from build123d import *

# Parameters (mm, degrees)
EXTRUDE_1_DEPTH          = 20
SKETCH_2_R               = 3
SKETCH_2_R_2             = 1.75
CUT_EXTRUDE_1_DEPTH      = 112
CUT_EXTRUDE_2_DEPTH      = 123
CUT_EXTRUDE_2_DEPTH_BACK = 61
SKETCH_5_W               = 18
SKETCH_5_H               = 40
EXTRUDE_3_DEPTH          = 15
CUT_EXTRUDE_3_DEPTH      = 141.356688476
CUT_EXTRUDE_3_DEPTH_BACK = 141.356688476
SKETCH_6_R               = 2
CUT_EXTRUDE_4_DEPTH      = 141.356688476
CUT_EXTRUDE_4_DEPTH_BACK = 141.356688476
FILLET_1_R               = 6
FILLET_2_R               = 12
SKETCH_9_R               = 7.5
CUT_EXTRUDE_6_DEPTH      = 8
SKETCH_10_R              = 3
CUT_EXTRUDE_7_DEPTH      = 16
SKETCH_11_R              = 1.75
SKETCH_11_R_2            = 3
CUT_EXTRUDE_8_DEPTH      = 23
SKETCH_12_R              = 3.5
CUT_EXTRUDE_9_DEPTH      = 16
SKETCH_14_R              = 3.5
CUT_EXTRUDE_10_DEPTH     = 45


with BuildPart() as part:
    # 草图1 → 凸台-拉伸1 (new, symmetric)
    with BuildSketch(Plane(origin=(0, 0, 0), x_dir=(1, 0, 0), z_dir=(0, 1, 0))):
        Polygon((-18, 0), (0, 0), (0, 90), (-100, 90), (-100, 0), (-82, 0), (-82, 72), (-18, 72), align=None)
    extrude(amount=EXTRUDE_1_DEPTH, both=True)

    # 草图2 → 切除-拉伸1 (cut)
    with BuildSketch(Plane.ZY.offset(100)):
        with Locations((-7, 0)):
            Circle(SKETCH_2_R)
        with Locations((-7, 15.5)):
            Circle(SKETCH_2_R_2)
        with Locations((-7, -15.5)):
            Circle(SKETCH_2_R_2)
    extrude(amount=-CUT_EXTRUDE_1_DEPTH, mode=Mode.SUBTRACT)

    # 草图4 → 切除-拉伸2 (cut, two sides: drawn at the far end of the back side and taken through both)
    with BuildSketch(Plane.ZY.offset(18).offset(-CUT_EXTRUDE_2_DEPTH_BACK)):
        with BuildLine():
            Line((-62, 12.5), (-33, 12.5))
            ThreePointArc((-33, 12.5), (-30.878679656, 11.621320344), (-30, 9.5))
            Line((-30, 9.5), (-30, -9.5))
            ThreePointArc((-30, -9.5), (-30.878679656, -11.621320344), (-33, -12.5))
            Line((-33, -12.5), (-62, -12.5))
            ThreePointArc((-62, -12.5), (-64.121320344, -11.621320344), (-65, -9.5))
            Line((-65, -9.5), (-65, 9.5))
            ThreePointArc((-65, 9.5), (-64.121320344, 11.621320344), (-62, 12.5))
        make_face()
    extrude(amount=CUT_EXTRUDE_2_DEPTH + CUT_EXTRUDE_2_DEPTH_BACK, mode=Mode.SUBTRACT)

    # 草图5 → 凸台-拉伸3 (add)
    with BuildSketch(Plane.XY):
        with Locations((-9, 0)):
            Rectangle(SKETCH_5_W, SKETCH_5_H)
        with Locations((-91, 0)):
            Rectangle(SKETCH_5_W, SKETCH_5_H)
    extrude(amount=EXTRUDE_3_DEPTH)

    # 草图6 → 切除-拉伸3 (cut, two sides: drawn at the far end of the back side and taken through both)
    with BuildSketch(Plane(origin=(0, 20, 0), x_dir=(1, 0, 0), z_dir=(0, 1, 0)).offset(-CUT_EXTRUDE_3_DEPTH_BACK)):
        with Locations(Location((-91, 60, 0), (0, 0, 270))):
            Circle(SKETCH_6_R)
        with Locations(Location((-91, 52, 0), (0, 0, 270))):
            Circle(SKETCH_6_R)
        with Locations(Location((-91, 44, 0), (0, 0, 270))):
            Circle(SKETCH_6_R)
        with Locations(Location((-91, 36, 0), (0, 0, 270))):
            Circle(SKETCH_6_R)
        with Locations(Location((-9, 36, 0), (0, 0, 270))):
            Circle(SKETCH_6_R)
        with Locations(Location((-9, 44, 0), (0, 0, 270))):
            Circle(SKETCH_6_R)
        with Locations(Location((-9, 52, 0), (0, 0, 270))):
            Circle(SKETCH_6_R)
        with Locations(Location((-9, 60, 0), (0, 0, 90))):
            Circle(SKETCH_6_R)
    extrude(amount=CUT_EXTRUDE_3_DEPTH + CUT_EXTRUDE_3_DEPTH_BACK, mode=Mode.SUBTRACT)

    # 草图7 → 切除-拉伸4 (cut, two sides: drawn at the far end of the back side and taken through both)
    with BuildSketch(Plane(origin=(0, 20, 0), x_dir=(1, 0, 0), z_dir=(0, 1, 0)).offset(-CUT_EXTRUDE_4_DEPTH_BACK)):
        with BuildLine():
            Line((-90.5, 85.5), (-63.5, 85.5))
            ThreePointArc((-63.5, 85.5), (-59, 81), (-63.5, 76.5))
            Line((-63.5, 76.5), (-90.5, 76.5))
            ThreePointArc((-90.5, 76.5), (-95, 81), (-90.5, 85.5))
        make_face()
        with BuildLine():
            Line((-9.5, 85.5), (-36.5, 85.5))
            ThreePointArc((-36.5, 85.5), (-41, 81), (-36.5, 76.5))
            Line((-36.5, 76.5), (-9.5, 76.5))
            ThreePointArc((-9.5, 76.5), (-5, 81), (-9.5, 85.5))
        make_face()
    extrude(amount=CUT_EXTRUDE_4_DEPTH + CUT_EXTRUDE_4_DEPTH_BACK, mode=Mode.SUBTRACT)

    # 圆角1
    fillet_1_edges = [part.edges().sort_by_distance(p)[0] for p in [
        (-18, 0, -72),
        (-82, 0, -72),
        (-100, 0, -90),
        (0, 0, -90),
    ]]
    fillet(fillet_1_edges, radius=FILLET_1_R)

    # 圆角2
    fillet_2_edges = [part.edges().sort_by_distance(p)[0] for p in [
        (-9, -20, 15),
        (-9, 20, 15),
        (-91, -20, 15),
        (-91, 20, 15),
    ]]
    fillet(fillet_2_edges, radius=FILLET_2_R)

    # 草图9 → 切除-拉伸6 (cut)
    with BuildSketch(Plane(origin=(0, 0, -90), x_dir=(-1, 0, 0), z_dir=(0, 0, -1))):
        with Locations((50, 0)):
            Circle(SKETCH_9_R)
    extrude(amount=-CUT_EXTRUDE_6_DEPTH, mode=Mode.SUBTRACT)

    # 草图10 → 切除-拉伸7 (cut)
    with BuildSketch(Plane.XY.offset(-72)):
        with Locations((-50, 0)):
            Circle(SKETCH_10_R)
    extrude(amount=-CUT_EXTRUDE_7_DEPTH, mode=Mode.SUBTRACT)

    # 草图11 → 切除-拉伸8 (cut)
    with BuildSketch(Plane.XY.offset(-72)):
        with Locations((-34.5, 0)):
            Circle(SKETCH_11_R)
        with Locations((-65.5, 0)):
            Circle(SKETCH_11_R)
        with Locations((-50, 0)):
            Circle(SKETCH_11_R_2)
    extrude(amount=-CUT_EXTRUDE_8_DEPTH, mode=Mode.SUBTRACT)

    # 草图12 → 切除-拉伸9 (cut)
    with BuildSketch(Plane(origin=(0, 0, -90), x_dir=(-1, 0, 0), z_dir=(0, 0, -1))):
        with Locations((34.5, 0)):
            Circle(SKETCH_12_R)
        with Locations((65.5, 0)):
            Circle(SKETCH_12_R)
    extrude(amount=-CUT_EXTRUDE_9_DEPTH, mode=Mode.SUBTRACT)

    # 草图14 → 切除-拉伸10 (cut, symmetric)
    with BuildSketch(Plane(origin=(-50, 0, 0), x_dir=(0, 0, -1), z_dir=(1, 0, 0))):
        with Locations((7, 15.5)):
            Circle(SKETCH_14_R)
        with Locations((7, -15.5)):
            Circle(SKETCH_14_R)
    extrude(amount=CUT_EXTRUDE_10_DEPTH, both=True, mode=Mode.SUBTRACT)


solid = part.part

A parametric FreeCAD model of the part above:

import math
import FreeCAD as App
import Part
import Sketcher

V = App.Vector


def edges_at(feature, points):
    """Names of the edges that pass closest to the given points."""
    edges = feature.Shape.Edges
    near = lambda p: min(range(len(edges)), key=lambda i: edges[i].distToShape(Part.Vertex(*p))[0])
    return sorted({f"Edge{near(p) + 1}" for p in points})


def add_polygon(sketch, points):
    """Adds a closed chain of lines whose ends are joined by coincident constraints."""
    first, n = sketch.GeometryCount, len(points)
    for a, b in zip(points, points[1:] + points[:1]):
        sketch.addGeometry(Part.LineSegment(App.Vector(*a, 0), App.Vector(*b, 0)), False)
    for i in range(n):
        sketch.addConstraint(Sketcher.Constraint("Coincident", first + i, 2, first + (i + 1) % n, 1))

doc = App.newDocument("Part")
body = doc.addObject("PartDesign::Body", "Body")

sketch1 = body.newObject("Sketcher::SketchObject", "Sketch")
sketch1.AttachmentSupport = (doc.getObject("XZ_Plane"), [""])
sketch1.MapMode = "FlatFace"
add_polygon(sketch1, [(-18, 0), (0, 0), (0, -90), (-100, -90), (-100, 0), (-82, 0), (-82, -72), (-18, -72)])
sketch1.addConstraint(Sketcher.Constraint("Horizontal", 0))
sketch1.addConstraint(Sketcher.Constraint("Vertical", 1))
sketch1.addConstraint(Sketcher.Constraint("Horizontal", 2))
sketch1.addConstraint(Sketcher.Constraint("Vertical", 3))
sketch1.addConstraint(Sketcher.Constraint("Horizontal", 4))
sketch1.addConstraint(Sketcher.Constraint("Vertical", 5))
sketch1.addConstraint(Sketcher.Constraint("Horizontal", 6))
sketch1.addConstraint(Sketcher.Constraint("Vertical", 7))
sketch1.addConstraint(Sketcher.Constraint("Coincident", 0, 2, -1, 1))
sketch1.addConstraint(Sketcher.Constraint("PointOnObject", 3, 2, -1))
sketch1.addConstraint(Sketcher.Constraint("Equal", 0, 4))
sketch1.addConstraint(Sketcher.Constraint("DistanceX", 0, 1, 0, 2, 18.0))
sketch1.addConstraint(Sketcher.Constraint("DistanceX", 2, 2, 2, 1, 100.0))
sketch1.addConstraint(Sketcher.Constraint("DistanceY", 1, 2, 1, 1, 90.0))
sketch1.addConstraint(Sketcher.Constraint("DistanceY", 5, 2, 5, 1, 72.0))
pad1 = body.newObject("PartDesign::Pad", "Pad")
pad1.Profile = sketch1
pad1.Length = 40
pad1.Midplane = True

sketch2 = body.newObject("Sketcher::SketchObject", "Sketch001")
sketch2.AttachmentSupport = (doc.getObject("YZ_Plane"), [""])
sketch2.MapMode = "FlatFace"
sketch2.AttachmentOffset = App.Placement(V(0, 0, -100), App.Rotation())
sketch2.addGeometry(Part.Circle(V(0, -7, 0), V(0, 0, 1), 3), False)
sketch2.addGeometry(Part.Circle(V(15.5, -7, 0), V(0, 0, 1), 1.8), False)
sketch2.addGeometry(Part.Circle(V(-15.5, -7, 0), V(0, 0, 1), 1.8), False)
sketch2.addConstraint(Sketcher.Constraint("Equal", 1, 2))
sketch2.addConstraint(Sketcher.Constraint("Symmetric", 1, 3, 2, 3, -2))
sketch2.addConstraint(Sketcher.Constraint("PointOnObject", 0, 3, -2))
sketch2.addConstraint(Sketcher.Constraint("Horizontal", 0, 3, 1, 3))
sketch2.addConstraint(Sketcher.Constraint("Diameter", 0, 6.0))
sketch2.addConstraint(Sketcher.Constraint("Diameter", 1, 3.5))
sketch2.addConstraint(Sketcher.Constraint("DistanceY", 0, 3, -1, 1, 7.0))
sketch2.addConstraint(Sketcher.Constraint("DistanceX", 2, 3, 1, 3, 31.0))
pocket1 = body.newObject("PartDesign::Pocket", "Pocket")
pocket1.Profile = sketch2
pocket1.Length = 112
pocket1.Reversed = True

sketch3 = body.newObject("Sketcher::SketchObject", "Sketch002")
sketch3.AttachmentSupport = (doc.getObject("YZ_Plane"), [""])
sketch3.MapMode = "FlatFace"
sketch3.AttachmentOffset = App.Placement(V(0, 0, -18), App.Rotation())
sketch3.addGeometry(Part.LineSegment(V(12.5, -33, 0), V(12.5, -62, 0)), False)
sketch3.addGeometry(Part.ArcOfCircle(Part.Circle(V(9.5, -62, 0), V(0, 0, 1), 3), math.radians(-90), math.radians(0)), False)
sketch3.addGeometry(Part.LineSegment(V(9.5, -65, 0), V(-9.5, -65, 0)), False)
sketch3.addGeometry(Part.ArcOfCircle(Part.Circle(V(-9.5, -62, 0), V(0, 0, 1), 3), math.radians(180), math.radians(270)), False)
sketch3.addGeometry(Part.LineSegment(V(-12.5, -62, 0), V(-12.5, -33, 0)), False)
sketch3.addGeometry(Part.ArcOfCircle(Part.Circle(V(-9.5, -33, 0), V(0, 0, 1), 3), math.radians(90), math.radians(180)), False)
sketch3.addGeometry(Part.LineSegment(V(-9.5, -30, 0), V(9.5, -30, 0)), False)
sketch3.addGeometry(Part.ArcOfCircle(Part.Circle(V(9.5, -33, 0), V(0, 0, 1), 3), math.radians(0), math.radians(90)), False)
sketch3.addConstraint(Sketcher.Constraint("Tangent", 0, 2, 1, 2))
sketch3.addConstraint(Sketcher.Constraint("Tangent", 1, 1, 2, 1))
sketch3.addConstraint(Sketcher.Constraint("Tangent", 2, 2, 3, 2))
sketch3.addConstraint(Sketcher.Constraint("Tangent", 3, 1, 4, 1))
sketch3.addConstraint(Sketcher.Constraint("Tangent", 4, 2, 5, 2))
sketch3.addConstraint(Sketcher.Constraint("Tangent", 5, 1, 6, 1))
sketch3.addConstraint(Sketcher.Constraint("Tangent", 6, 2, 7, 2))
sketch3.addConstraint(Sketcher.Constraint("Tangent", 7, 1, 0, 1))
sketch3.addConstraint(Sketcher.Constraint("Vertical", 0))
sketch3.addConstraint(Sketcher.Constraint("Horizontal", 2))
sketch3.addConstraint(Sketcher.Constraint("Vertical", 4))
sketch3.addConstraint(Sketcher.Constraint("Horizontal", 6))
sketch3.addConstraint(Sketcher.Constraint("Equal", 1, 3))
sketch3.addConstraint(Sketcher.Constraint("Equal", 3, 5))
sketch3.addConstraint(Sketcher.Constraint("Equal", 5, 7))
sketch3.addConstraint(Sketcher.Constraint("Radius", 1, 3.0))
sketch3.addConstraint(Sketcher.Constraint("DistanceX", 2, 2, 2, 1, 19.0))
sketch3.addConstraint(Sketcher.Constraint("DistanceY", 0, 2, 0, 1, 29.0))
sketch3.addConstraint(Sketcher.Constraint("DistanceY", 1, 3, -1, 1, 62.0))
sketch3.addConstraint(Sketcher.Constraint("DistanceX", -1, 1, 1, 3, 9.5))
pocket2 = body.newObject("PartDesign::Pocket", "Pocket001")
pocket2.Profile = sketch3
pocket2.Type = "ThroughAll"
pocket2.Midplane = True

sketch4 = body.newObject("Sketcher::SketchObject", "Sketch003")
sketch4.AttachmentSupport = (doc.getObject("XY_Plane"), [""])
sketch4.MapMode = "FlatFace"
add_polygon(sketch4, [(-18, 20), (-18, -20), (0, -20), (0, 20)])
add_polygon(sketch4, [(-100, 20), (-100, -20), (-82, -20), (-82, 20)])
sketch4.addConstraint(Sketcher.Constraint("Vertical", 0))
sketch4.addConstraint(Sketcher.Constraint("Horizontal", 1))
sketch4.addConstraint(Sketcher.Constraint("Vertical", 2))
sketch4.addConstraint(Sketcher.Constraint("Horizontal", 3))
sketch4.addConstraint(Sketcher.Constraint("Vertical", 4))
sketch4.addConstraint(Sketcher.Constraint("Horizontal", 5))
sketch4.addConstraint(Sketcher.Constraint("Vertical", 6))
sketch4.addConstraint(Sketcher.Constraint("Horizontal", 7))
sketch4.addConstraint(Sketcher.Constraint("Symmetric", 1, 2, 2, 2, -1, 1))
sketch4.addConstraint(Sketcher.Constraint("Horizontal", 1, 2, 4, 2))
sketch4.addConstraint(Sketcher.Constraint("Horizontal", 3, 2, 6, 2))
sketch4.addConstraint(Sketcher.Constraint("Equal", 3, 5))
sketch4.addConstraint(Sketcher.Constraint("DistanceX", 1, 1, 1, 2, 18.0))
sketch4.addConstraint(Sketcher.Constraint("DistanceY", 0, 2, 0, 1, 40.0))
sketch4.addConstraint(Sketcher.Constraint("DistanceX", 4, 2, -1, 1, 100.0))
pad2 = body.newObject("PartDesign::Pad", "Pad001")
pad2.Profile = sketch4
pad2.Length = 15

sketch5 = body.newObject("Sketcher::SketchObject", "Sketch004")
sketch5.AttachmentSupport = (doc.getObject("XZ_Plane"), [""])
sketch5.MapMode = "FlatFace"
sketch5.AttachmentOffset = App.Placement(V(0, 0, -20), App.Rotation())
sketch5.addGeometry(Part.Circle(V(-91, -60, 0), V(0, 0, 1), 2), False)
sketch5.addGeometry(Part.Circle(V(-91, -52, 0), V(0, 0, 1), 2), False)
sketch5.addGeometry(Part.Circle(V(-91, -44, 0), V(0, 0, 1), 2), False)
sketch5.addGeometry(Part.Circle(V(-91, -36, 0), V(0, 0, 1), 2), False)
sketch5.addGeometry(Part.Circle(V(-9, -36, 0), V(0, 0, 1), 2), False)
sketch5.addGeometry(Part.Circle(V(-9, -44, 0), V(0, 0, 1), 2), False)
sketch5.addGeometry(Part.Circle(V(-9, -52, 0), V(0, 0, 1), 2), False)
sketch5.addGeometry(Part.Circle(V(-9, -60, 0), V(0, 0, 1), 2), False)
sketch5.addConstraint(Sketcher.Constraint("Equal", 0, 1))
sketch5.addConstraint(Sketcher.Constraint("Equal", 1, 2))
sketch5.addConstraint(Sketcher.Constraint("Equal", 2, 3))
sketch5.addConstraint(Sketcher.Constraint("Equal", 3, 4))
sketch5.addConstraint(Sketcher.Constraint("Equal", 4, 5))
sketch5.addConstraint(Sketcher.Constraint("Equal", 5, 6))
sketch5.addConstraint(Sketcher.Constraint("Equal", 6, 7))
sketch5.addConstraint(Sketcher.Constraint("Horizontal", 3, 3, 4, 3))
sketch5.addConstraint(Sketcher.Constraint("Horizontal", 2, 3, 5, 3))
sketch5.addConstraint(Sketcher.Constraint("Horizontal", 1, 3, 6, 3))
sketch5.addConstraint(Sketcher.Constraint("Horizontal", 0, 3, 7, 3))
sketch5.addConstraint(Sketcher.Constraint("Vertical", 0, 3, 1, 3))
sketch5.addConstraint(Sketcher.Constraint("Vertical", 1, 3, 2, 3))
sketch5.addConstraint(Sketcher.Constraint("Vertical", 2, 3, 3, 3))
sketch5.addConstraint(Sketcher.Constraint("Vertical", 4, 3, 5, 3))
sketch5.addConstraint(Sketcher.Constraint("Vertical", 5, 3, 6, 3))
sketch5.addConstraint(Sketcher.Constraint("Vertical", 6, 3, 7, 3))
sketch5.addConstraint(Sketcher.Constraint("Diameter", 0, 4.0))
sketch5.addConstraint(Sketcher.Constraint("DistanceX", 0, 3, -1, 1, 91.0))
sketch5.addConstraint(Sketcher.Constraint("DistanceY", 0, 3, -1, 1, 60.0))
sketch5.addConstraint(Sketcher.Constraint("DistanceY", 1, 3, -1, 1, 52.0))
sketch5.addConstraint(Sketcher.Constraint("DistanceY", 2, 3, -1, 1, 44.0))
sketch5.addConstraint(Sketcher.Constraint("DistanceY", 3, 3, -1, 1, 36.0))
sketch5.addConstraint(Sketcher.Constraint("DistanceX", 4, 3, -1, 1, 9.0))
pocket3 = body.newObject("PartDesign::Pocket", "Pocket002")
pocket3.Profile = sketch5
pocket3.Type = "ThroughAll"
pocket3.Midplane = True

sketch6 = body.newObject("Sketcher::SketchObject", "Sketch005")
sketch6.AttachmentSupport = (doc.getObject("XZ_Plane"), [""])
sketch6.MapMode = "FlatFace"
sketch6.AttachmentOffset = App.Placement(V(0, 0, -20), App.Rotation())
sketch6.addGeometry(Part.LineSegment(V(-63.5, -85.5, 0), V(-90.5, -85.5, 0)), False)
sketch6.addGeometry(Part.ArcOfCircle(Part.Circle(V(-90.5, -81, 0), V(0, 0, 1), 4.5), math.radians(90), math.radians(270)), False)
sketch6.addGeometry(Part.LineSegment(V(-90.5, -76.5, 0), V(-63.5, -76.5, 0)), False)
sketch6.addGeometry(Part.ArcOfCircle(Part.Circle(V(-63.5, -81, 0), V(0, 0, 1), 4.5), math.radians(-90), math.radians(90)), False)
sketch6.addGeometry(Part.LineSegment(V(-9.5, -85.5, 0), V(-36.5, -85.5, 0)), False)
sketch6.addGeometry(Part.ArcOfCircle(Part.Circle(V(-36.5, -81, 0), V(0, 0, 1), 4.5), math.radians(90), math.radians(270)), False)
sketch6.addGeometry(Part.LineSegment(V(-36.5, -76.5, 0), V(-9.5, -76.5, 0)), False)
sketch6.addGeometry(Part.ArcOfCircle(Part.Circle(V(-9.5, -81, 0), V(0, 0, 1), 4.5), math.radians(-90), math.radians(90)), False)
sketch6.addConstraint(Sketcher.Constraint("Tangent", 0, 2, 1, 2))
sketch6.addConstraint(Sketcher.Constraint("Tangent", 1, 1, 2, 1))
sketch6.addConstraint(Sketcher.Constraint("Tangent", 2, 2, 3, 2))
sketch6.addConstraint(Sketcher.Constraint("Tangent", 3, 1, 0, 1))
sketch6.addConstraint(Sketcher.Constraint("Tangent", 4, 2, 5, 2))
sketch6.addConstraint(Sketcher.Constraint("Tangent", 5, 1, 6, 1))
sketch6.addConstraint(Sketcher.Constraint("Tangent", 6, 2, 7, 2))
sketch6.addConstraint(Sketcher.Constraint("Tangent", 7, 1, 4, 1))
sketch6.addConstraint(Sketcher.Constraint("Horizontal", 0))
sketch6.addConstraint(Sketcher.Constraint("Horizontal", 2))
sketch6.addConstraint(Sketcher.Constraint("Horizontal", 4))
sketch6.addConstraint(Sketcher.Constraint("Horizontal", 6))
sketch6.addConstraint(Sketcher.Constraint("Equal", 3, 5))
sketch6.addConstraint(Sketcher.Constraint("Horizontal", 3, 3, 5, 3))
sketch6.addConstraint(Sketcher.Constraint("Equal", 2, 4))
sketch6.addConstraint(Sketcher.Constraint("Radius", 1, 4.5))
sketch6.addConstraint(Sketcher.Constraint("DistanceX", 0, 2, 0, 1, 27.0))
sketch6.addConstraint(Sketcher.Constraint("DistanceY", 1, 3, -1, 1, 81.0))
sketch6.addConstraint(Sketcher.Constraint("DistanceX", 3, 3, 5, 3, 27.0))
sketch6.addConstraint(Sketcher.Constraint("DistanceX", 1, 3, -1, 1, 90.5))
pocket4 = body.newObject("PartDesign::Pocket", "Pocket003")
pocket4.Profile = sketch6
pocket4.Type = "ThroughAll"
pocket4.Midplane = True
doc.recompute()

fillet = body.newObject("PartDesign::Fillet", "Fillet")
fillet.Base = (pocket4, edges_at(pocket4, [
    (-18, 0, -72),
    (-82, 0, -72),
    (-100, 0, -90),
    (0, 0, -90),
]))
fillet.Radius = 6
doc.recompute()

fillet2 = body.newObject("PartDesign::Fillet", "Fillet001")
fillet2.Base = (fillet, edges_at(fillet, [
    (-9, -20, 15),
    (-9, 20, 15),
    (-91, -20, 15),
    (-91, 20, 15),
]))
fillet2.Radius = 12

sketch7 = body.newObject("Sketcher::SketchObject", "Sketch006")
sketch7.AttachmentSupport = (doc.getObject("XY_Plane"), [""])
sketch7.MapMode = "FlatFace"
sketch7.AttachmentOffset = App.Placement(V(0, 0, -90), App.Rotation())
sketch7.addGeometry(Part.Circle(V(-50, 0, 0), V(0, 0, 1), 8), False)
sketch7.addConstraint(Sketcher.Constraint("PointOnObject", 0, 3, -1))
sketch7.addConstraint(Sketcher.Constraint("Diameter", 0, 15.0))
sketch7.addConstraint(Sketcher.Constraint("DistanceX", 0, 3, -1, 1, 50.0))
pocket5 = body.newObject("PartDesign::Pocket", "Pocket004")
pocket5.Profile = sketch7
pocket5.Length = 8
pocket5.Reversed = True

sketch8 = body.newObject("Sketcher::SketchObject", "Sketch007")
sketch8.AttachmentSupport = (doc.getObject("XY_Plane"), [""])
sketch8.MapMode = "FlatFace"
sketch8.AttachmentOffset = App.Placement(V(0, 0, -72), App.Rotation())
sketch8.addGeometry(Part.Circle(V(-50, 0, 0), V(0, 0, 1), 3), False)
sketch8.addConstraint(Sketcher.Constraint("PointOnObject", 0, 3, -1))
sketch8.addConstraint(Sketcher.Constraint("Diameter", 0, 6.0))
sketch8.addConstraint(Sketcher.Constraint("DistanceX", 0, 3, -1, 1, 50.0))
pocket6 = body.newObject("PartDesign::Pocket", "Pocket005")
pocket6.Profile = sketch8
pocket6.Length = 16

sketch9 = body.newObject("Sketcher::SketchObject", "Sketch008")
sketch9.AttachmentSupport = (doc.getObject("XY_Plane"), [""])
sketch9.MapMode = "FlatFace"
sketch9.AttachmentOffset = App.Placement(V(0, 0, -72), App.Rotation())
sketch9.addGeometry(Part.Circle(V(-34.5, 0, 0), V(0, 0, 1), 1.8), False)
sketch9.addGeometry(Part.Circle(V(-65.5, 0, 0), V(0, 0, 1), 1.8), False)
sketch9.addGeometry(Part.Circle(V(-50, 0, 0), V(0, 0, 1), 3), False)
sketch9.addConstraint(Sketcher.Constraint("Equal", 0, 1))
sketch9.addConstraint(Sketcher.Constraint("PointOnObject", 0, 3, -1))
sketch9.addConstraint(Sketcher.Constraint("PointOnObject", 1, 3, -1))
sketch9.addConstraint(Sketcher.Constraint("PointOnObject", 2, 3, -1))
sketch9.addConstraint(Sketcher.Constraint("Diameter", 2, 6.0))
sketch9.addConstraint(Sketcher.Constraint("Diameter", 0, 3.5))
sketch9.addConstraint(Sketcher.Constraint("DistanceX", 2, 3, -1, 1, 50.0))
sketch9.addConstraint(Sketcher.Constraint("DistanceX", 1, 3, 0, 3, 31.0))
sketch9.addConstraint(Sketcher.Constraint("DistanceX", 0, 3, -1, 1, 34.5))
pocket7 = body.newObject("PartDesign::Pocket", "Pocket006")
pocket7.Profile = sketch9
pocket7.Length = 23

sketch10 = body.newObject("Sketcher::SketchObject", "Sketch009")
sketch10.AttachmentSupport = (doc.getObject("XY_Plane"), [""])
sketch10.MapMode = "FlatFace"
sketch10.AttachmentOffset = App.Placement(V(0, 0, -90), App.Rotation())
sketch10.addGeometry(Part.Circle(V(-34.5, 0, 0), V(0, 0, 1), 3.5), False)
sketch10.addGeometry(Part.Circle(V(-65.5, 0, 0), V(0, 0, 1), 3.5), False)
sketch10.addConstraint(Sketcher.Constraint("Equal", 0, 1))
sketch10.addConstraint(Sketcher.Constraint("PointOnObject", 0, 3, -1))
sketch10.addConstraint(Sketcher.Constraint("PointOnObject", 1, 3, -1))
sketch10.addConstraint(Sketcher.Constraint("Diameter", 0, 7.0))
sketch10.addConstraint(Sketcher.Constraint("DistanceX", 1, 3, 0, 3, 31.0))
sketch10.addConstraint(Sketcher.Constraint("DistanceX", 0, 3, -1, 1, 34.5))
pocket8 = body.newObject("PartDesign::Pocket", "Pocket007")
pocket8.Profile = sketch10
pocket8.Length = 16
pocket8.Reversed = True

sketch11 = body.newObject("Sketcher::SketchObject", "Sketch010")
sketch11.AttachmentSupport = (doc.getObject("YZ_Plane"), [""])
sketch11.MapMode = "FlatFace"
sketch11.AttachmentOffset = App.Placement(V(0, 0, -50), App.Rotation())
sketch11.addGeometry(Part.Circle(V(15.5, -7, 0), V(0, 0, 1), 3.5), False)
sketch11.addGeometry(Part.Circle(V(-15.5, -7, 0), V(0, 0, 1), 3.5), False)
sketch11.addConstraint(Sketcher.Constraint("Equal", 0, 1))
sketch11.addConstraint(Sketcher.Constraint("Symmetric", 0, 3, 1, 3, -2))
sketch11.addConstraint(Sketcher.Constraint("Diameter", 0, 7.0))
sketch11.addConstraint(Sketcher.Constraint("DistanceY", 0, 3, -1, 1, 7.0))
sketch11.addConstraint(Sketcher.Constraint("DistanceX", 1, 3, 0, 3, 31.0))
pocket9 = body.newObject("PartDesign::Pocket", "Pocket008")
pocket9.Profile = sketch11
pocket9.Length = 90
pocket9.Midplane = True

doc.recompute()
